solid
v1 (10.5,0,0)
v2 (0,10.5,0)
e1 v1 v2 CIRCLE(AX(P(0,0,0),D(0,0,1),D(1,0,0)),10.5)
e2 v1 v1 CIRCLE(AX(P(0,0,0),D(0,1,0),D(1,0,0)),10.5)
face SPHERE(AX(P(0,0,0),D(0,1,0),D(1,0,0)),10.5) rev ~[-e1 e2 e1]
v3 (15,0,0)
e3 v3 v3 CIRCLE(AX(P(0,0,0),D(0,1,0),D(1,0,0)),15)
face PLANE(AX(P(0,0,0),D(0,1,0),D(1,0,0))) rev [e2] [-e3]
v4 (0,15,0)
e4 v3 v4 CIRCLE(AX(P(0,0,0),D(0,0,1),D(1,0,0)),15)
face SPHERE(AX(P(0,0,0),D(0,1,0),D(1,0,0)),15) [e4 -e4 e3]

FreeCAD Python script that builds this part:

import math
import FreeCAD as App
import Part
import Sketcher

V = App.Vector


def faces_at(feature, points):
    """Names of the faces that lie closest to the given points."""
    faces = feature.Shape.Faces
    near = lambda p: min(range(len(faces)), key=lambda i: faces[i].distToShape(Part.Vertex(*p))[0])
    return sorted({f"Face{near(p) + 1}" for p in points})

doc = App.newDocument("Part")
body = doc.addObject("PartDesign::Body", "Body")

# Sketch on XY plane
sketch1 = doc.addObject("Sketcher::SketchObject", "Sketch")
body.addObject(sketch1)
sketch1.AttachmentSupport = (doc.XY_Plane, [""])
sketch1.MapMode = "FlatFace"
sketch1.addGeometry([
    Part.LineSegment(V(0, 15, 0), V(0, 0, 0)),
    Part.LineSegment(V(0, 0, 0), V(15, 0, 0)),
    Part.ArcOfCircle(Part.Circle(V(0, 0, 0), V(0, 0, 1), 15), math.radians(0), math.radians(90)),
], False)
sketch1.addConstraint([
    Sketcher.Constraint("Coincident", 0, 2, 1, 1),
    Sketcher.Constraint("Coincident", 1, 2, 2, 1),
    Sketcher.Constraint("Coincident", 2, 2, 0, 1),
    Sketcher.Constraint("Vertical", 0),
    Sketcher.Constraint("Horizontal", 1),
    Sketcher.Constraint("Coincident", 2, 3, -1, 1),
    Sketcher.Constraint("Coincident", 0, 2, -1, 1),
    Sketcher.Constraint("Radius", 2, 15.0),
])
revolution = doc.addObject("PartDesign::Revolution", "Revolution")
body.addObject(revolution)
revolution.Profile = sketch1
revolution.ReferenceAxis = (sketch1, ["V_Axis"])
revolution.Angle = 360
doc.recompute()

thickness = doc.addObject("PartDesign::Thickness", "Thickness")
body.addObject(thickness)
thickness.Base = (revolution, faces_at(revolution, [(4.709, 0, 0)]))
thickness.Value = 4.5
thickness.Reversed = True
thickness.Join = "Intersection"

doc.recompute()
